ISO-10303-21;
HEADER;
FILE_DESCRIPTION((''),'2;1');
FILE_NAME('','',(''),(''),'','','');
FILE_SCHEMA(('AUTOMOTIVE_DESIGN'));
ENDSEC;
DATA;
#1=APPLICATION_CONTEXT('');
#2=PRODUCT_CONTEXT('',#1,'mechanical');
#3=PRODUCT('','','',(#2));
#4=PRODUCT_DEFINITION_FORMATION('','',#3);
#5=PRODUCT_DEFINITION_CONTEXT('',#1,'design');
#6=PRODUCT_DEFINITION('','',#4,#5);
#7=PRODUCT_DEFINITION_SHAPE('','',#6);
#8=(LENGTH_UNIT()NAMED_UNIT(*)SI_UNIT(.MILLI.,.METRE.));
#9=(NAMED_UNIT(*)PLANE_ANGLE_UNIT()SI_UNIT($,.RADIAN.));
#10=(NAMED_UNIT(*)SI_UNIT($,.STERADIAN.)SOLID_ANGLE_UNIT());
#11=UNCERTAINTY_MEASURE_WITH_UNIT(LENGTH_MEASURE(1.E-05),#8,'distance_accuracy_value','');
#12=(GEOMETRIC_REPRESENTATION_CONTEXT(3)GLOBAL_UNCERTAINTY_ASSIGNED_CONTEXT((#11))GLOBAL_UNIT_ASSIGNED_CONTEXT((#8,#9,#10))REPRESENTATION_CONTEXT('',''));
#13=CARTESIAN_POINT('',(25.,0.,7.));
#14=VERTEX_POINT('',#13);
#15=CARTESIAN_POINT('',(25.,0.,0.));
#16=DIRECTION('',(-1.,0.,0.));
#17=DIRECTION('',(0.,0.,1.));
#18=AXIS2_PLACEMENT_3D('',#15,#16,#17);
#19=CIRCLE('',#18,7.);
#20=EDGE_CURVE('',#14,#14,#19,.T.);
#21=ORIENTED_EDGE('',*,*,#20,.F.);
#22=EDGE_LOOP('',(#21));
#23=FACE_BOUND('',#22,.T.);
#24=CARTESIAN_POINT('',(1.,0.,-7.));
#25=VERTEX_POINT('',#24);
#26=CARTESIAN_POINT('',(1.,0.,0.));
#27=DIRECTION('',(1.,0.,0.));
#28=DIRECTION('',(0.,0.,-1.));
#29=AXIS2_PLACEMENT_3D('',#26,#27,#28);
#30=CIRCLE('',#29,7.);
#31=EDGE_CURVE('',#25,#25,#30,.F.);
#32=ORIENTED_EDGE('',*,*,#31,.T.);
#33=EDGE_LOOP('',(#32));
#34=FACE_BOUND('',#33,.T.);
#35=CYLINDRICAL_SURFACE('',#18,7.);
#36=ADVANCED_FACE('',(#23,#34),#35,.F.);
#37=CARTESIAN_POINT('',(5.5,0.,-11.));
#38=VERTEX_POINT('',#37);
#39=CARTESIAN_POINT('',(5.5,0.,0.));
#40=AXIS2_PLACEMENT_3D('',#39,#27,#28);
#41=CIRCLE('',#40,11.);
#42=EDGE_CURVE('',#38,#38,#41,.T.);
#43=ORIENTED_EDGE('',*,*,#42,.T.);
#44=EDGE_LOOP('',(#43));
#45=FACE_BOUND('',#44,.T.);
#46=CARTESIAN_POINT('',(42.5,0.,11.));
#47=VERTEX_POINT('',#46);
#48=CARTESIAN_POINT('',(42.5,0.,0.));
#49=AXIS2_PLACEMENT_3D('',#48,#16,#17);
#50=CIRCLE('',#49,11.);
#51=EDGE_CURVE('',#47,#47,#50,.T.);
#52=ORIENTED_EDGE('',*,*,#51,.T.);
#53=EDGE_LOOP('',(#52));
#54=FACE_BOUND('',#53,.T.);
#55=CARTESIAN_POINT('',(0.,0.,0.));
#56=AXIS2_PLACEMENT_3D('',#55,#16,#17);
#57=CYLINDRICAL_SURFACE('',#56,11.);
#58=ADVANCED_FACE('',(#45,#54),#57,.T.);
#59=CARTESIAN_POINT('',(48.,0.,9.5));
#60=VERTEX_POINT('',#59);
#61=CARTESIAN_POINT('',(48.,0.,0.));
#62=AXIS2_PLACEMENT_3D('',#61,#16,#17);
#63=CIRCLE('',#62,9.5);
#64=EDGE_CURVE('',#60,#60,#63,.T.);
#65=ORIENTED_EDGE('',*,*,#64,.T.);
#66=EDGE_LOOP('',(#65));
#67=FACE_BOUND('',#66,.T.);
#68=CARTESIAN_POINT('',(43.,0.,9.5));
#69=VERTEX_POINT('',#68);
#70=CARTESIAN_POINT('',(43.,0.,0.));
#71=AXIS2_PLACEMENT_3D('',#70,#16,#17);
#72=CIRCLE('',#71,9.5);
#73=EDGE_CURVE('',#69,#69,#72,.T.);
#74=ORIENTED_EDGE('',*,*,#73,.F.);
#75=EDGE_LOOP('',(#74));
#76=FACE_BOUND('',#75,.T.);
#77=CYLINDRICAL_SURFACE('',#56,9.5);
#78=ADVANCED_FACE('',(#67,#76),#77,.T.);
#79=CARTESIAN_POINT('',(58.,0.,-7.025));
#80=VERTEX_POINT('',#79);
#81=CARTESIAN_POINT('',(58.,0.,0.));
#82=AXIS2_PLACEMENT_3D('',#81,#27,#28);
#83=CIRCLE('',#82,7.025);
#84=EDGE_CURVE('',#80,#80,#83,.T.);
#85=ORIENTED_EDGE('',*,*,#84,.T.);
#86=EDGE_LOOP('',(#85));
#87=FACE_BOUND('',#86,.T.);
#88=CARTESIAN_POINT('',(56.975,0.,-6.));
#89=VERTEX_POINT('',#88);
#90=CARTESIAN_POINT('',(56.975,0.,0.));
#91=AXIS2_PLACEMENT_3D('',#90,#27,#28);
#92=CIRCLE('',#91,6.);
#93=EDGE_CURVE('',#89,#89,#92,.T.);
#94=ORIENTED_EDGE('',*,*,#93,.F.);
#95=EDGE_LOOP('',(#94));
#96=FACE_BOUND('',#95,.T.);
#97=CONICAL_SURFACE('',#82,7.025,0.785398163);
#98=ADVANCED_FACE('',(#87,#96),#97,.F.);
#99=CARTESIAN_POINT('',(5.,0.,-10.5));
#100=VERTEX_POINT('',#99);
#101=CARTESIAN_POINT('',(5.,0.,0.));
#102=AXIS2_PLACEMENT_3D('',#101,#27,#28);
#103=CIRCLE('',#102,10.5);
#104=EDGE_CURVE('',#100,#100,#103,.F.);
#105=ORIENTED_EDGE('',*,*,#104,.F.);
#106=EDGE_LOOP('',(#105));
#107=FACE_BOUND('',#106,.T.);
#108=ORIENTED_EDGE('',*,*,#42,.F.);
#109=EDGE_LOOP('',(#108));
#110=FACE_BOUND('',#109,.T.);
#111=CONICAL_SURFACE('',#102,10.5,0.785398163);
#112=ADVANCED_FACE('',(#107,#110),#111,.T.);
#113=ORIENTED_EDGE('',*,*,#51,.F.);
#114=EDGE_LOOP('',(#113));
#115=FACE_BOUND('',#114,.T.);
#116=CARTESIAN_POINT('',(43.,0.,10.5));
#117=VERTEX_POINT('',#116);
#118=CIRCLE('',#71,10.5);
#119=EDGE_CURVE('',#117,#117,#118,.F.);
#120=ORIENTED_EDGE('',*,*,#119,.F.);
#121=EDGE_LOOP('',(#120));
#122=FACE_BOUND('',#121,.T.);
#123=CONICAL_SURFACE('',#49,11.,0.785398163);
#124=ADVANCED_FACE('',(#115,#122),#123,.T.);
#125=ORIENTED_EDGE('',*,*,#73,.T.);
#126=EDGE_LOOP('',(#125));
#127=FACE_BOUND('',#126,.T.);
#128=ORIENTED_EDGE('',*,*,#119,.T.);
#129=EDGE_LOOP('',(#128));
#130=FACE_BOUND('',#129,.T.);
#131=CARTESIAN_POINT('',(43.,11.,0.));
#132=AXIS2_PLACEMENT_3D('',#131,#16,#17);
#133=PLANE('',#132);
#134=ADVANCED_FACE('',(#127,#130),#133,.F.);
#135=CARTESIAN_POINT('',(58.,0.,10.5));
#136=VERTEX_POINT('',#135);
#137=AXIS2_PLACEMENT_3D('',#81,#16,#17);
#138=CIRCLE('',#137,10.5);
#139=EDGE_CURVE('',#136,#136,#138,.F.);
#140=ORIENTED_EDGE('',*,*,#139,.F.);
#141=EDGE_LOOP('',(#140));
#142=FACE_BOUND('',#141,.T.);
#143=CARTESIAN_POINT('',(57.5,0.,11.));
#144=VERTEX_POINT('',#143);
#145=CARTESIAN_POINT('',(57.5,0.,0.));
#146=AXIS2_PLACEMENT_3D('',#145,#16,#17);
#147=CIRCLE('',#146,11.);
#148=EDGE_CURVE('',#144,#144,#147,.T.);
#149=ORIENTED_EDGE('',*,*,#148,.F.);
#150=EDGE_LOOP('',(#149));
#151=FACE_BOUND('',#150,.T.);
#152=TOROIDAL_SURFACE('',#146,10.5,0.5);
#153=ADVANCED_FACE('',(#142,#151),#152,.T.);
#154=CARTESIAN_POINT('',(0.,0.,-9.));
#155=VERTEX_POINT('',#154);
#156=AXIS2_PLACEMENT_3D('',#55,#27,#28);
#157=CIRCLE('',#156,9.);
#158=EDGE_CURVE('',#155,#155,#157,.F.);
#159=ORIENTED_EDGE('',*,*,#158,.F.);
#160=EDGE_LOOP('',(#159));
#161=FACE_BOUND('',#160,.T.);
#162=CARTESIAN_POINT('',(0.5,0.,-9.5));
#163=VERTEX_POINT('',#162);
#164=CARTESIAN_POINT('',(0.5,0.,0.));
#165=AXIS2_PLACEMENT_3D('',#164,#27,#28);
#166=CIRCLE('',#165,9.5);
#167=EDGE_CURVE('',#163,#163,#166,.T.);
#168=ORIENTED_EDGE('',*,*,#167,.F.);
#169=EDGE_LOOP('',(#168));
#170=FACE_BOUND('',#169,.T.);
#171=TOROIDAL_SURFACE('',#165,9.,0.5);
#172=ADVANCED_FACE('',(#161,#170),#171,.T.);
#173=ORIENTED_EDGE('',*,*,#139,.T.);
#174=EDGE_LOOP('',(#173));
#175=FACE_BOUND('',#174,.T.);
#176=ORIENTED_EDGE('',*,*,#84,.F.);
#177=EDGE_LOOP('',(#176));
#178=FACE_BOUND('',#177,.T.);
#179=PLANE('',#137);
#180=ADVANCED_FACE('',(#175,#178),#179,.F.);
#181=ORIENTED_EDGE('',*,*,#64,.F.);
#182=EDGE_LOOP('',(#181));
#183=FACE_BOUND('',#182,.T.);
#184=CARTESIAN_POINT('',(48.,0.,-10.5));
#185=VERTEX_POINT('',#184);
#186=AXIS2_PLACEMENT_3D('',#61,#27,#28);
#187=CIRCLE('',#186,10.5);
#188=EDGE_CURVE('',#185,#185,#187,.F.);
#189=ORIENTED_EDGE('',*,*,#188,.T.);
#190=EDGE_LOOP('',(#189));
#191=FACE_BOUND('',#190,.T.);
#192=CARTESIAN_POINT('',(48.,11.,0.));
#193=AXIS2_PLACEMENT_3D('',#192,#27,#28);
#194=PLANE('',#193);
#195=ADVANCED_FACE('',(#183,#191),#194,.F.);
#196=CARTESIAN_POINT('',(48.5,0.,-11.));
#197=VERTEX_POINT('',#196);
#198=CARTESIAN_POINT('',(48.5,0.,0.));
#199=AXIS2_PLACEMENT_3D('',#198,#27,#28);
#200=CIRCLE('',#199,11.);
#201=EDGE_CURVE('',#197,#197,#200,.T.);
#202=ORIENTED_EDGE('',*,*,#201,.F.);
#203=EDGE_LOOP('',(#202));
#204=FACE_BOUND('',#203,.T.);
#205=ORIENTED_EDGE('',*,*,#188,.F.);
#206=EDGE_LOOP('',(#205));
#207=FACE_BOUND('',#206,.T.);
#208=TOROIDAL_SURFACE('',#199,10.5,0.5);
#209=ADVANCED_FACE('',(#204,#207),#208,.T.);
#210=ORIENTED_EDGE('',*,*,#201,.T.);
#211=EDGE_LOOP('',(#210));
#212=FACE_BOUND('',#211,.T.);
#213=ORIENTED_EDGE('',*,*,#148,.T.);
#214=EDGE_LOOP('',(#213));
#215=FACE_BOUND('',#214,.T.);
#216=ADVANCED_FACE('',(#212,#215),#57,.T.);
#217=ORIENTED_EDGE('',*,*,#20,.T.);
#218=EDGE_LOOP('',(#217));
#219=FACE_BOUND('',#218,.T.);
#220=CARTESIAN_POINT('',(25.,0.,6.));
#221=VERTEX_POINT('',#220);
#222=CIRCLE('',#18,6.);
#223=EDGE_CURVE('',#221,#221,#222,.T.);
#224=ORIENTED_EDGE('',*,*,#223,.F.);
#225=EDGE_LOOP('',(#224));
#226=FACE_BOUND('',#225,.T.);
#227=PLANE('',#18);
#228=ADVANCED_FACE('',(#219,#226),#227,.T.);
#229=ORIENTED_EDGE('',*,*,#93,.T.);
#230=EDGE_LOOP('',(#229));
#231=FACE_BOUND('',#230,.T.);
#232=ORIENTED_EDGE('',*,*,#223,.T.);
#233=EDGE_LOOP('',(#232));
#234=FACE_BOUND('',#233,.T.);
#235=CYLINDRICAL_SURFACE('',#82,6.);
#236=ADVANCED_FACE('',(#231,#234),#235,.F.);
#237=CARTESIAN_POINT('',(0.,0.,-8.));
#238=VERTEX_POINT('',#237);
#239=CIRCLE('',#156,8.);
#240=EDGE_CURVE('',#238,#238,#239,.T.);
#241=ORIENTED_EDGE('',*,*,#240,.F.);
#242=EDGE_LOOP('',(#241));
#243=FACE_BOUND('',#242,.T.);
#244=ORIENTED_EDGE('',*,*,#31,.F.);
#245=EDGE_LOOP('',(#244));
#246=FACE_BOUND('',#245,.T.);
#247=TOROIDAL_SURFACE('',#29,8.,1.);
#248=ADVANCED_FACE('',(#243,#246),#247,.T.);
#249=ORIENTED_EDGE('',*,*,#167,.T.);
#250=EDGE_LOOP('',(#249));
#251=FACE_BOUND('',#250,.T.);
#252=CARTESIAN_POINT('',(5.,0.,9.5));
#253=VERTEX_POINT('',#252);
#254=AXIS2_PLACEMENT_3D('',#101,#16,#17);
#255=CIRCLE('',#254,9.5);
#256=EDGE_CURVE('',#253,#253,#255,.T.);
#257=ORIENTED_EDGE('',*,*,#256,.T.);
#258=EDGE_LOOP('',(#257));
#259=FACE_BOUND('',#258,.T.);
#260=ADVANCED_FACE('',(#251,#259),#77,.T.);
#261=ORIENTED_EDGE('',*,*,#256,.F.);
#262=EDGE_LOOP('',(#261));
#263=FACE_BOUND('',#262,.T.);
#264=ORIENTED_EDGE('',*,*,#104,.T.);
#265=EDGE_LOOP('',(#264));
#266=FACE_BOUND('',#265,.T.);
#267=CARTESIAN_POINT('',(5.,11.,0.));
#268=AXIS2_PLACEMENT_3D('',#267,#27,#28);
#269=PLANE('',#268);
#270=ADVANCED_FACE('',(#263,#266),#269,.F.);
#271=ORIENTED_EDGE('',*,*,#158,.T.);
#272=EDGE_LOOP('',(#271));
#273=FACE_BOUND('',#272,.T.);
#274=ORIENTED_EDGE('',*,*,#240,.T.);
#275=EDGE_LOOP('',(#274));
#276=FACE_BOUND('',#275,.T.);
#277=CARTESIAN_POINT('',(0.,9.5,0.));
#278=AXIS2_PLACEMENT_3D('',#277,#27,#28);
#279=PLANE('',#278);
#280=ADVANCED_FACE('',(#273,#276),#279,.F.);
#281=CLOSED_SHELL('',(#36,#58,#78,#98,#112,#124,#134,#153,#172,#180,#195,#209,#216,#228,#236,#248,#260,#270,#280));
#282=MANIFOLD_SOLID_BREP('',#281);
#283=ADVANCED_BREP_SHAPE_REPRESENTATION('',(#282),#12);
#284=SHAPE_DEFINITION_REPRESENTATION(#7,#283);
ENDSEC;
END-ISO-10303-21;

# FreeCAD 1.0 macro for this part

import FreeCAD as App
import Part
import Sketcher
from FreeCAD import Vector


def edges_at(feature, points):
    """Names of the edges that pass closest to the given points."""
    edges = feature.Shape.Edges
    near = lambda p: min(range(len(edges)), key=lambda i: edges[i].distToShape(Part.Vertex(*p))[0])
    return sorted({f"Edge{near(p) + 1}" for p in points})


def add_polygon(sketch, points):
    """Adds a closed chain of lines whose ends are joined by coincident constraints."""
    first, n = sketch.GeometryCount, len(points)
    for a, b in zip(points, points[1:] + points[:1]):
        sketch.addGeometry(Part.LineSegment(App.Vector(*a, 0), App.Vector(*b, 0)), False)
    for i in range(n):
        sketch.addConstraint(Sketcher.Constraint("Coincident", first + i, 2, first + (i + 1) % n, 1))

doc = App.newDocument("Part")
body = doc.addObject("PartDesign::Body", "Body")

# Sketch on XY plane
sketch1 = body.newObject("Sketcher::SketchObject", "Sketch")
sketch1.AttachmentSupport = (doc.getObject("XY_Plane"), [""])
sketch1.MapMode = "FlatFace"
add_polygon(sketch1, [(0, 0), (58, 0), (58, 11), (48, 11), (48, 9.5), (43, 9.5), (43, 11), (5, 11), (5, 9.5), (0, 9.5)])  # lines 0-9
sketch1.addConstraint([
    Sketcher.Constraint("Horizontal", 0),
    Sketcher.Constraint("Vertical", 1),
    Sketcher.Constraint("Horizontal", 2),
    Sketcher.Constraint("Vertical", 3),
    Sketcher.Constraint("Horizontal", 4),
    Sketcher.Constraint("Vertical", 5),
    Sketcher.Constraint("Horizontal", 6),
    Sketcher.Constraint("Vertical", 7),
    Sketcher.Constraint("Horizontal", 8),
    Sketcher.Constraint("Vertical", 9),
    Sketcher.Constraint("Coincident", 9, 2, -1, 1),
    Sketcher.Constraint("Horizontal", 2, 2, 5, 2),
    Sketcher.Constraint("Horizontal", 4, 2, 7, 2),
    Sketcher.Constraint("Equal", 4, 8),
    Sketcher.Constraint("DistanceX", 0, 1, 0, 2, 58.0),
    Sketcher.Constraint("DistanceX", 2, 2, 2, 1, 10.0),
    Sketcher.Constraint("DistanceX", 4, 2, 4, 1, 5.0),
    Sketcher.Constraint("DistanceY", 1, 1, 1, 2, 11.0),
    Sketcher.Constraint("DistanceY", 3, 2, 3, 1, 1.5),
])
revolution = body.newObject("PartDesign::Revolution", "Revolution")
revolution.Profile = sketch1
revolution.ReferenceAxis = (sketch1, ["H_Axis"])
revolution.Angle = 360

# Sketch on YZ plane
sketch2 = body.newObject("Sketcher::SketchObject", "Sketch001")
sketch2.AttachmentSupport = (doc.getObject("YZ_Plane"), [""])
sketch2.MapMode = "FlatFace"
sketch2.addGeometry(Part.Circle(Vector(0, 0, 0), Vector(0, 0, 1), 7), False)
sketch2.addConstraint([
    Sketcher.Constraint("Coincident", 0, 3, -1, 1),
    Sketcher.Constraint("Diameter", 0, 14.0),
])
pocket1 = body.newObject("PartDesign::Pocket", "Pocket")
pocket1.Profile = sketch2
pocket1.Length = 25
pocket1.Reversed = True

# Sketch on YZ plane
sketch3 = body.newObject("Sketcher::SketchObject", "Sketch002")
sketch3.AttachmentSupport = (doc.getObject("YZ_Plane"), [""])
sketch3.MapMode = "FlatFace"
sketch3.AttachmentOffset = App.Placement(Vector(0, 0, 58), App.Rotation())
sketch3.addGeometry(Part.Circle(Vector(0, 0, 0), Vector(0, 0, 1), 6), False)
sketch3.addConstraint([
    Sketcher.Constraint("Coincident", 0, 3, -1, 1),
    Sketcher.Constraint("Diameter", 0, 12.0),
])
doc.recompute()
hole = body.newObject("PartDesign::Hole", "Hole")
hole.Profile = sketch3
hole.ThreadType = "None"
hole.Diameter = 12
hole.DepthType = "Dimension"
hole.Depth = 35
hole.DrillPoint = "Angled"
hole.DrillPointAngle = 118
hole.HoleCutType = "Countersink"
hole.HoleCutDiameter = 14.05
hole.HoleCutCountersinkAngle = 90
doc.recompute()

fillet = body.newObject("PartDesign::Fillet", "Fillet")
fillet.Base = (hole, edges_at(hole, [(58, 0, -11), (0, 0, -9.5), (48, 0, -11)]))
fillet.Radius = 0.5
doc.recompute()

fillet2 = body.newObject("PartDesign::Fillet", "Fillet001")
fillet2.Base = (fillet, edges_at(fillet, [(0, 0, -7)]))
fillet2.Radius = 1
doc.recompute()

chamfer = body.newObject("PartDesign::Chamfer", "Chamfer")
chamfer.Base = (fillet2, edges_at(fillet2, [(5, 0, -11), (43, 0, -11)]))
chamfer.Size = 0.5

doc.recompute()
